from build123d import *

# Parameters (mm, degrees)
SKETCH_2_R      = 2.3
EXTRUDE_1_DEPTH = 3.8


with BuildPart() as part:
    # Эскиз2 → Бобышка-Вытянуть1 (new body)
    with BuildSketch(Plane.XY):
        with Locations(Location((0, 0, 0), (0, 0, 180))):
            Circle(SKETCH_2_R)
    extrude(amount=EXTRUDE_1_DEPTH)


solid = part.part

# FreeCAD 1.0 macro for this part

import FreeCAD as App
import Part
import Sketcher

doc = App.newDocument("Part")
body = doc.addObject("PartDesign::Body", "Body")

# Sketch on XY plane
sketch1 = body.newObject("Sketcher::SketchObject", "Sketch")
sketch1.AttachmentSupport = (doc.getObject("XY_Plane"), [""])
sketch1.MapMode = "FlatFace"
sketch1.addGeometry(Part.Circle(App.Vector(0, 0, 0), App.Vector(0, 0, 1), 2.3), False)
sketch1.addConstraint([
    Sketcher.Constraint("Coincident", 0, 3, -1, 1),
    Sketcher.Constraint("Diameter", 0, 4.6),
])
pad1 = body.newObject("PartDesign::Pad", "Pad")
pad1.Profile = sketch1
pad1.Length = 3.8

doc.recompute()
